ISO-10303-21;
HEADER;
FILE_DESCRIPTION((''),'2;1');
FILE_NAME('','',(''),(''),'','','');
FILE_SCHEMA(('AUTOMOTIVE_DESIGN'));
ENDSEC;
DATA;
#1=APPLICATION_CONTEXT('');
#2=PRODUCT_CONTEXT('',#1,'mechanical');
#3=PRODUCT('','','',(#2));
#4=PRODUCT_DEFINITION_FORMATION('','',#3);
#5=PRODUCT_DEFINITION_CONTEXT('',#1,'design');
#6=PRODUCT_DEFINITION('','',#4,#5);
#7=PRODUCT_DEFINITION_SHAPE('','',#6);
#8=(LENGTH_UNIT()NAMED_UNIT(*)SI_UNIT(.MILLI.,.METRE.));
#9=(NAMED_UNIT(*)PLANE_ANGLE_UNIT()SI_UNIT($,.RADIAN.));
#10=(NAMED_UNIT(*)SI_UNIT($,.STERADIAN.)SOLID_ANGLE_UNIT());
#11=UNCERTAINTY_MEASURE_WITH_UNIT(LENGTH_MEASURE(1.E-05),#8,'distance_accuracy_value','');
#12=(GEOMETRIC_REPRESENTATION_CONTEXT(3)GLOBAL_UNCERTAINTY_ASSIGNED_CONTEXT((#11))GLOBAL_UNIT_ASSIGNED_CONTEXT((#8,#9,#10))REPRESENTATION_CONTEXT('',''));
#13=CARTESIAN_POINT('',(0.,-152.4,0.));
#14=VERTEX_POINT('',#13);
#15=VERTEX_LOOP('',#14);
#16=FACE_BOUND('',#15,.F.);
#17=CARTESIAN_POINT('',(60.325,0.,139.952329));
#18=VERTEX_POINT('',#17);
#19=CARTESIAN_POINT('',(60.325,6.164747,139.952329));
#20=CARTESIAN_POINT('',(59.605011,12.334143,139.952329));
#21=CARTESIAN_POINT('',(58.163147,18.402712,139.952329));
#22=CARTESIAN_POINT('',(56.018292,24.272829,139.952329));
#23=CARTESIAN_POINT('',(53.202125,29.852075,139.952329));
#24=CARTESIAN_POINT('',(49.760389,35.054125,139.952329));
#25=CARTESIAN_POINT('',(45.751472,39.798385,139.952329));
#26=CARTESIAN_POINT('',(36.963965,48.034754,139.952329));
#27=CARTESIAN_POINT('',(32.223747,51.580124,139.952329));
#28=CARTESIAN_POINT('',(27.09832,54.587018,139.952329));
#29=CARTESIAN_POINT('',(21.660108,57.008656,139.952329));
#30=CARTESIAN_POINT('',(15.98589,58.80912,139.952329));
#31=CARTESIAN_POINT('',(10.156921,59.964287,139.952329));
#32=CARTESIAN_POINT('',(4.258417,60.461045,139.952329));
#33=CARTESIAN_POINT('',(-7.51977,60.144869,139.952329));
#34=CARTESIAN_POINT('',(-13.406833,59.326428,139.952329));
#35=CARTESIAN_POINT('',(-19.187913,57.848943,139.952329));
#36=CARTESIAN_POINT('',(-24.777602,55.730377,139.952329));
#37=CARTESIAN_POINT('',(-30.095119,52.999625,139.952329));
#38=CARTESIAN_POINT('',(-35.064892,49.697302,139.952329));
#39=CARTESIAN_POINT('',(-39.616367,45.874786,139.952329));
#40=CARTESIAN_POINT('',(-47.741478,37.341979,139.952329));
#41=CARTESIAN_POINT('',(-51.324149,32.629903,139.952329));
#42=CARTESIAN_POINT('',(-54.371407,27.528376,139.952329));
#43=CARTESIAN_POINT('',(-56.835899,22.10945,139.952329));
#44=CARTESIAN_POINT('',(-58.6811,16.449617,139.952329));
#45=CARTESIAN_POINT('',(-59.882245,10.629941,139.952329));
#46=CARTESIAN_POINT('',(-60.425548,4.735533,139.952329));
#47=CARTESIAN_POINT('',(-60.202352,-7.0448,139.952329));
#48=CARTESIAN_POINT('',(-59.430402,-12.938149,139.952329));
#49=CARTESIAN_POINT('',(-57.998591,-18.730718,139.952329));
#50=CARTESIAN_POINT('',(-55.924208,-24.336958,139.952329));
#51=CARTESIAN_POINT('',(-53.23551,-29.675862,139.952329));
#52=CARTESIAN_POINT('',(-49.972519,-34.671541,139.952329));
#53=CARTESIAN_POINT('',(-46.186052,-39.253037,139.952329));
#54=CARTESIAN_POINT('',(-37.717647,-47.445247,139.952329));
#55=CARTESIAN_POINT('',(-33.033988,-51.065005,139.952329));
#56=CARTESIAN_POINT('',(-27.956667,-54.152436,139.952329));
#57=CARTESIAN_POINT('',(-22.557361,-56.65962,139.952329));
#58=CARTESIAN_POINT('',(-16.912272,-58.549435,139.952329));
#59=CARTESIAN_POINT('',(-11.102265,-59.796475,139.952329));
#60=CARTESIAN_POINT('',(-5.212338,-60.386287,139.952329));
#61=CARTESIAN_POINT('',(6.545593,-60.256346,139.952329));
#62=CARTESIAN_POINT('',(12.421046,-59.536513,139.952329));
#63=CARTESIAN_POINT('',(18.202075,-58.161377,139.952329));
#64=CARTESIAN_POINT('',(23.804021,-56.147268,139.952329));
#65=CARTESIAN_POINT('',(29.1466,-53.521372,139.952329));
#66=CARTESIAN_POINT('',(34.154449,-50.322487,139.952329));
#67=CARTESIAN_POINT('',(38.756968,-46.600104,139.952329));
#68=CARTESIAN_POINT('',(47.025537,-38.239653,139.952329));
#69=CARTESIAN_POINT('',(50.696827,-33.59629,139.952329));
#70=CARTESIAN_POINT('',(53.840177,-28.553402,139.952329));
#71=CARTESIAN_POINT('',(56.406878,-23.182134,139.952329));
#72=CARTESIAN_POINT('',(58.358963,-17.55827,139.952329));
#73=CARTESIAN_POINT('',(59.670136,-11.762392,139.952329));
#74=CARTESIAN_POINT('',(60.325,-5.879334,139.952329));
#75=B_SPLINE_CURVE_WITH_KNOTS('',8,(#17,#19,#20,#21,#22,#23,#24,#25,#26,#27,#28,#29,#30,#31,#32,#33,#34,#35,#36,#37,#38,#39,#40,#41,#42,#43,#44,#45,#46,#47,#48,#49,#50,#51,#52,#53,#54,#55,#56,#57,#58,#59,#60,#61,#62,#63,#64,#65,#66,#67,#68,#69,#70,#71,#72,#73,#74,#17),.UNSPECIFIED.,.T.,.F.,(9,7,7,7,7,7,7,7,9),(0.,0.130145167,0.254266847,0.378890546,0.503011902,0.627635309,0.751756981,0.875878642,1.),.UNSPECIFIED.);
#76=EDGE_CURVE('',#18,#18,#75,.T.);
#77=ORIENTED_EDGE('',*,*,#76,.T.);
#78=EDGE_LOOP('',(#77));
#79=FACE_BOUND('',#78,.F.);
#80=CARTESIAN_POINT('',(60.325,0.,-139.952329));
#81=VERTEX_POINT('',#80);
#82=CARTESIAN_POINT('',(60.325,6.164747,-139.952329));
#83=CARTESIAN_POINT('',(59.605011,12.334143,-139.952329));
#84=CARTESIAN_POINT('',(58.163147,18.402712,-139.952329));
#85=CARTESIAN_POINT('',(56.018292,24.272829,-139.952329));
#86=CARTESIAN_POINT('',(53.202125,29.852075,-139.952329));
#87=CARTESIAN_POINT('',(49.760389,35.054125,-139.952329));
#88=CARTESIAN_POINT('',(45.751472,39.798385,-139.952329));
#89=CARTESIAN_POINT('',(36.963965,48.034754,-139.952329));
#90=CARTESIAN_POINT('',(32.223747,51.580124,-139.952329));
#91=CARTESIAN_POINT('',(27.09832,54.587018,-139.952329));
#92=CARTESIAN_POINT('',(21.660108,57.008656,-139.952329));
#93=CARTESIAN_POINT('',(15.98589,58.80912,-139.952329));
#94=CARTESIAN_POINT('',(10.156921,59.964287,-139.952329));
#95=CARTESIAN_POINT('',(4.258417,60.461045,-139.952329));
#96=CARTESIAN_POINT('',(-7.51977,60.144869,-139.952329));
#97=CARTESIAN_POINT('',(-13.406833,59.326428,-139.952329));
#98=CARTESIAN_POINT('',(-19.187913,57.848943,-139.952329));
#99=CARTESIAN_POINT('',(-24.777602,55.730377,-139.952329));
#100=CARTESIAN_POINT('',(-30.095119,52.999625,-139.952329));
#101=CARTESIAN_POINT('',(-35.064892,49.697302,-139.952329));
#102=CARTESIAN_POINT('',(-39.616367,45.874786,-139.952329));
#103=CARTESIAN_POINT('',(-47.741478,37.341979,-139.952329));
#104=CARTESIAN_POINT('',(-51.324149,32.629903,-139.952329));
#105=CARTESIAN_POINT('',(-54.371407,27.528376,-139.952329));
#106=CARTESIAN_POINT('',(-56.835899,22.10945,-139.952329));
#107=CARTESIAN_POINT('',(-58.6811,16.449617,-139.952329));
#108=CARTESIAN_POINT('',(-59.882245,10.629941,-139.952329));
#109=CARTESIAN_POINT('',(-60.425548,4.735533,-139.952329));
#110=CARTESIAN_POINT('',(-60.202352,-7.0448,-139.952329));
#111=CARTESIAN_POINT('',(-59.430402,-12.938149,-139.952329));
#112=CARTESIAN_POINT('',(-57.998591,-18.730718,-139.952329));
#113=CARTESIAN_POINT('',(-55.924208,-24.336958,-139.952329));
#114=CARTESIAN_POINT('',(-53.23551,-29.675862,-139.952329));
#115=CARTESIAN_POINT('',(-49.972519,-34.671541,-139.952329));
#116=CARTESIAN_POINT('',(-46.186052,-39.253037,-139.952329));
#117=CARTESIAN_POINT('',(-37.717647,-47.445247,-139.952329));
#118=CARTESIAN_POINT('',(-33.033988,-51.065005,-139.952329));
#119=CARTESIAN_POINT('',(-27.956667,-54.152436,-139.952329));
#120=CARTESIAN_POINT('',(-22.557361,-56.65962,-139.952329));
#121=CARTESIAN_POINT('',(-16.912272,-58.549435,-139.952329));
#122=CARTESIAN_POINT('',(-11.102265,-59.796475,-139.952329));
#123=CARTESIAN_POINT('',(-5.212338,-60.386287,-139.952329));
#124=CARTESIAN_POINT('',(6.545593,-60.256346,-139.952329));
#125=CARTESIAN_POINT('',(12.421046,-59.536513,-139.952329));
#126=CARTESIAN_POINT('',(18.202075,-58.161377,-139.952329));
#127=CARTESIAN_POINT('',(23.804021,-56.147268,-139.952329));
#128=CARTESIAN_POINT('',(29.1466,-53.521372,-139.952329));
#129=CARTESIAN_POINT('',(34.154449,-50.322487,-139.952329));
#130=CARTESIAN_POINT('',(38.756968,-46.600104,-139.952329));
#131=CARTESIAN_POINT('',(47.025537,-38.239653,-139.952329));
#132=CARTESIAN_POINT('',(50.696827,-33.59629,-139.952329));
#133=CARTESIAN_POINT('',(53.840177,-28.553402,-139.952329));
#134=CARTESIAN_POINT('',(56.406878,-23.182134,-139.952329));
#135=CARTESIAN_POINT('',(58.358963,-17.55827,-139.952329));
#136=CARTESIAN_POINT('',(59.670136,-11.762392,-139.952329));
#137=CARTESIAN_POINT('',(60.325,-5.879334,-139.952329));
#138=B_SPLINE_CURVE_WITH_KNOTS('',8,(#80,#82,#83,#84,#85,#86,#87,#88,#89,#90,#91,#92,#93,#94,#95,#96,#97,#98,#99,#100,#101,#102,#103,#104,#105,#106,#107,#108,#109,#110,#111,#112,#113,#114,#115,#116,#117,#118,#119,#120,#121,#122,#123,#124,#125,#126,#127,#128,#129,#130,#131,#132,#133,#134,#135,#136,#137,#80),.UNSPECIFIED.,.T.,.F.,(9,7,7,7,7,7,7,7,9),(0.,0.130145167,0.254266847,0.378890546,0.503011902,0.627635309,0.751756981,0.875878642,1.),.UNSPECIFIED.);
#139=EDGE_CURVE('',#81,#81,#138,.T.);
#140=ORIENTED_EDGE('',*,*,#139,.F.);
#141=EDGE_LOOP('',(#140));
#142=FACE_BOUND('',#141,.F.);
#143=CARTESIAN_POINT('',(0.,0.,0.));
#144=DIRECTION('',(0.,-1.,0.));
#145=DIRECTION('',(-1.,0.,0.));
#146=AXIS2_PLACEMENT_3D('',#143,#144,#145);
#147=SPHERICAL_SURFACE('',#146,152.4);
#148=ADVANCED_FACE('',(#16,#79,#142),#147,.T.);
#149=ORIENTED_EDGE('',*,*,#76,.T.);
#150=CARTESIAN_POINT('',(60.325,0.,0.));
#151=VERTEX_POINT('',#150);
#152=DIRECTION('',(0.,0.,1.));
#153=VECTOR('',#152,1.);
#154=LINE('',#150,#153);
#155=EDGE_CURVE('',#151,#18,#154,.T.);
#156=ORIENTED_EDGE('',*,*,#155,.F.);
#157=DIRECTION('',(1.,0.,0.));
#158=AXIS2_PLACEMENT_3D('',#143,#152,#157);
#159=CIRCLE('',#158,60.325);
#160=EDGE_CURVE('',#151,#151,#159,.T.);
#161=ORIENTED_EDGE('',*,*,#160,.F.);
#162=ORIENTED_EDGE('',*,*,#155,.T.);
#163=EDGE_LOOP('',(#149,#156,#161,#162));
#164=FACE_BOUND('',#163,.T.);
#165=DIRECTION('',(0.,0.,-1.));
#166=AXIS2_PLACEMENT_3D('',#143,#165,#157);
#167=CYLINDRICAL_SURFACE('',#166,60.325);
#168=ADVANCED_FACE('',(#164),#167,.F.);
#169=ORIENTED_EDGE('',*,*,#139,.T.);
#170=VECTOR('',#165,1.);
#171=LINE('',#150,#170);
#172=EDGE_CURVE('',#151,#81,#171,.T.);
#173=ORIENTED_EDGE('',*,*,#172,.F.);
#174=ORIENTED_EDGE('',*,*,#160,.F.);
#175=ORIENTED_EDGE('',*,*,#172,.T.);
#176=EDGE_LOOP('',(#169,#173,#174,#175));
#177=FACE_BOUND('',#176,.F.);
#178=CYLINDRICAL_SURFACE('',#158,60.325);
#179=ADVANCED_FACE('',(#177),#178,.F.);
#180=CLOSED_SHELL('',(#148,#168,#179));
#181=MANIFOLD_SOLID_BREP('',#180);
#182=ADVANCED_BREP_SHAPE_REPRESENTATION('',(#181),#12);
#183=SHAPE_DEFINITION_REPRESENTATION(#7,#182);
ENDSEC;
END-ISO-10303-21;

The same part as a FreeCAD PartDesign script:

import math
import FreeCAD as App
import Part
import Sketcher

V = App.Vector
Q = App.Units.Quantity

doc = App.newDocument("Part")
body = doc.addObject("PartDesign::Body", "Body")

sketch1 = doc.addObject("Sketcher::SketchObject", "Sketch")
body.addObject(sketch1)
sketch1.AttachmentSupport = (doc.XY_Plane, [""])
sketch1.MapMode = "FlatFace"
sketch1.addGeometry(Part.LineSegment(V(0, -152.4, 0), V(0, 152.4, 0)), False)
sketch1.addGeometry(Part.ArcOfCircle(Part.Circle(V(0, 0, 0), V(0, 0, 1), 152.4), math.radians(90), math.radians(270)), False)
sketch1.addConstraint(Sketcher.Constraint("Coincident", 0, 1, 1, 2))
sketch1.addConstraint(Sketcher.Constraint("Coincident", 1, 1, 0, 2))
sketch1.addConstraint(Sketcher.Constraint("Vertical", 0))
sketch1.addConstraint(Sketcher.Constraint("Coincident", 1, 3, -1, 1))
sketch1.addConstraint(Sketcher.Constraint("PointOnObject", 0, 1, -2))
sketch1.addConstraint(Sketcher.Constraint("Radius", 1, Q("6 in")))
revolution = doc.addObject("PartDesign::Revolution", "Revolution")
body.addObject(revolution)
revolution.Profile = sketch1
revolution.ReferenceAxis = (sketch1, ["V_Axis"])
revolution.Angle = 360

sketch2 = doc.addObject("Sketcher::SketchObject", "Sketch001")
body.addObject(sketch2)
sketch2.AttachmentSupport = (doc.XY_Plane, [""])
sketch2.MapMode = "FlatFace"
sketch2.addGeometry(Part.Circle(V(0, 0, 0), V(0, 0, 1), 60.325), False)
sketch2.addConstraint(Sketcher.Constraint("Coincident", 0, 3, -1, 1))
sketch2.addConstraint(Sketcher.Constraint("Diameter", 0, Q("4.75 in")))
pocket1 = doc.addObject("PartDesign::Pocket", "Pocket")
body.addObject(pocket1)
pocket1.Profile = sketch2
pocket1.Type = "ThroughAll"
pocket1.Midplane = True

doc.recompute()
